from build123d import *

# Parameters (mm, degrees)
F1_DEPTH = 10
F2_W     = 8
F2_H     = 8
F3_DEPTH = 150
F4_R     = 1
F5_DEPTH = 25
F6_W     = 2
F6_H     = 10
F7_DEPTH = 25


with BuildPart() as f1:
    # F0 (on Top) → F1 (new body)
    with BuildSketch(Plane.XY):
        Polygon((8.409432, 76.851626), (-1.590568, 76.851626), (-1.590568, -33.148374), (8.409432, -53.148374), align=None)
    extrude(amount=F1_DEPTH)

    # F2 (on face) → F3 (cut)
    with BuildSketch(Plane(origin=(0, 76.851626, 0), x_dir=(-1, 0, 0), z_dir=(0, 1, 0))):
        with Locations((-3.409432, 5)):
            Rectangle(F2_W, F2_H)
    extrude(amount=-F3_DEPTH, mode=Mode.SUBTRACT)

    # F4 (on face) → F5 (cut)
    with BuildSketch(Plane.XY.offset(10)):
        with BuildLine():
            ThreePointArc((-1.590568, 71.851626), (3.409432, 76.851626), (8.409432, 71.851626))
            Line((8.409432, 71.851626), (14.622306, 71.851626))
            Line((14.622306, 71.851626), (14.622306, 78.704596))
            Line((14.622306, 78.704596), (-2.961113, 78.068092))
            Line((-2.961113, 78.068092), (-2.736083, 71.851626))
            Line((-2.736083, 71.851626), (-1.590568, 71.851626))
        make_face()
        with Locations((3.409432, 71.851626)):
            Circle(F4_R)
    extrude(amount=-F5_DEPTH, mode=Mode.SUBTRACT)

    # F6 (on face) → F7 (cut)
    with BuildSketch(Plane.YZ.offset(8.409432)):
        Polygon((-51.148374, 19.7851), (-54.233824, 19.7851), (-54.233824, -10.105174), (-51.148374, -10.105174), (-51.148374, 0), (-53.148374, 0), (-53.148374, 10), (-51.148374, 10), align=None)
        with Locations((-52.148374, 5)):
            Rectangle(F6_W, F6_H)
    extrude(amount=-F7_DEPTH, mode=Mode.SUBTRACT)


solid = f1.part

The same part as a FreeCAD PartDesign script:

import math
import FreeCAD as App
import Part
import Sketcher
from FreeCAD import Vector


def add_polygon(sketch, points):
    """Adds a closed chain of lines whose ends are joined by coincident constraints."""
    first, n = sketch.GeometryCount, len(points)
    for a, b in zip(points, points[1:] + points[:1]):
        sketch.addGeometry(Part.LineSegment(App.Vector(*a, 0), App.Vector(*b, 0)), False)
    for i in range(n):
        sketch.addConstraint(Sketcher.Constraint("Coincident", first + i, 2, first + (i + 1) % n, 1))

doc = App.newDocument("Part")
body = doc.addObject("PartDesign::Body", "Body")

# Sketch on XY plane
sketch1 = body.newObject("Sketcher::SketchObject", "Sketch")
sketch1.AttachmentSupport = (doc.getObject("XY_Plane"), [""])
sketch1.MapMode = "FlatFace"
add_polygon(sketch1, [(8, 77), (-2, 77), (-2, -33), (8, -53)])  # lines 0-3
sketch1.addConstraint(Sketcher.Constraint("Horizontal", 0))
sketch1.addConstraint(Sketcher.Constraint("Vertical", 1))
sketch1.addConstraint(Sketcher.Constraint("Vertical", 3))
sketch1.addConstraint(Sketcher.Constraint("DistanceX", 0, 2, 0, 1, 10.0))
sketch1.addConstraint(Sketcher.Constraint("DistanceY", 1, 2, 1, 1, 110.0))
sketch1.addConstraint(Sketcher.Constraint("DistanceY", 3, 1, 3, 2, 130.0))
sketch1.addConstraint(Sketcher.Constraint("DistanceX", 0, 2, -1, 1, 1.590568))
sketch1.addConstraint(Sketcher.Constraint("DistanceY", -1, 1, 0, 2, 76.851626))
pad1 = body.newObject("PartDesign::Pad", "Pad")
pad1.Profile = sketch1
pad1.Length = 10

# Sketch on XZ plane
sketch2 = body.newObject("Sketcher::SketchObject", "Sketch001")
sketch2.AttachmentSupport = (doc.getObject("XZ_Plane"), [""])
sketch2.MapMode = "FlatFace"
sketch2.AttachmentOffset = App.Placement(Vector(0, 0, -76.851626), App.Rotation())
add_polygon(sketch2, [(7, 9), (7, 1), (-1, 1), (-1, 9)])  # lines 0-3
sketch2.addConstraint(Sketcher.Constraint("Vertical", 0))
sketch2.addConstraint(Sketcher.Constraint("Horizontal", 1))
sketch2.addConstraint(Sketcher.Constraint("Vertical", 2))
sketch2.addConstraint(Sketcher.Constraint("Horizontal", 3))
sketch2.addConstraint(Sketcher.Constraint("Equal", 3, 0))
sketch2.addConstraint(Sketcher.Constraint("DistanceX", 1, 2, 1, 1, 8.0))
sketch2.addConstraint(Sketcher.Constraint("DistanceY", -1, 1, 0, 2, 1.0))
sketch2.addConstraint(Sketcher.Constraint("DistanceX", -1, 1, 0, 2, 7.409432))
pocket1 = body.newObject("PartDesign::Pocket", "Pocket")
pocket1.Profile = sketch2
pocket1.Length = 150
pocket1.Reversed = True

# Sketch on XY plane
sketch3 = body.newObject("Sketcher::SketchObject", "Sketch002")
sketch3.AttachmentSupport = (doc.getObject("XY_Plane"), [""])
sketch3.MapMode = "FlatFace"
sketch3.AttachmentOffset = App.Placement(Vector(0, 0, 10), App.Rotation())
sketch3.addGeometry(Part.ArcOfCircle(Part.Circle(Vector(3.4, 71.9, 0), Vector(0, 0, 1), 5), math.radians(0), math.radians(180)), False)
sketch3.addGeometry(Part.LineSegment(Vector(8.4, 71.9, 0), Vector(14.6, 71.9, 0)), False)
sketch3.addGeometry(Part.LineSegment(Vector(14.6, 71.9, 0), Vector(14.6, 78.7, 0)), False)
sketch3.addGeometry(Part.LineSegment(Vector(14.6, 78.7, 0), Vector(-3, 78.1, 0)), False)
sketch3.addGeometry(Part.LineSegment(Vector(-3, 78.1, 0), Vector(-2.7, 71.9, 0)), False)
sketch3.addGeometry(Part.LineSegment(Vector(-2.7, 71.9, 0), Vector(-1.6, 71.9, 0)), False)
sketch3.addGeometry(Part.Circle(Vector(3.4, 71.9, 0), Vector(0, 0, 1), 1), False)
sketch3.addConstraint(Sketcher.Constraint("Coincident", 0, 1, 1, 1))
sketch3.addConstraint(Sketcher.Constraint("Coincident", 1, 2, 2, 1))
sketch3.addConstraint(Sketcher.Constraint("Coincident", 2, 2, 3, 1))
sketch3.addConstraint(Sketcher.Constraint("Coincident", 3, 2, 4, 1))
sketch3.addConstraint(Sketcher.Constraint("Coincident", 4, 2, 5, 1))
sketch3.addConstraint(Sketcher.Constraint("Coincident", 5, 2, 0, 2))
sketch3.addConstraint(Sketcher.Constraint("Horizontal", 1))
sketch3.addConstraint(Sketcher.Constraint("Vertical", 2))
sketch3.addConstraint(Sketcher.Constraint("Horizontal", 5))
sketch3.addConstraint(Sketcher.Constraint("Coincident", 6, 3, 0, 3))
sketch3.addConstraint(Sketcher.Constraint("Perpendicular", 3, 4))
sketch3.addConstraint(Sketcher.Constraint("Horizontal", 6, 3, 0, 1))
sketch3.addConstraint(Sketcher.Constraint("Horizontal", 1, 2, 4, 2))
sketch3.addConstraint(Sketcher.Constraint("Diameter", 6, 2.0))
sketch3.addConstraint(Sketcher.Constraint("Radius", 0, 5.0))
sketch3.addConstraint(Sketcher.Constraint("DistanceY", 2, 1, 2, 2, 6.85297))
sketch3.addConstraint(Sketcher.Constraint("DistanceX", 1, 1, 1, 2, 6.212874))
sketch3.addConstraint(Sketcher.Constraint("DistanceX", 5, 1, 5, 2, 1.145515))
sketch3.addConstraint(Sketcher.Constraint("DistanceX", -1, 1, 0, 3, 3.409432))
sketch3.addConstraint(Sketcher.Constraint("DistanceY", -1, 1, 3, 2, 78.068092))
sketch3.addConstraint(Sketcher.Constraint("DistanceX", 3, 2, 2, 2, 17.583419))
pocket2 = body.newObject("PartDesign::Pocket", "Pocket001")
pocket2.Profile = sketch3
pocket2.Length = 25

# Sketch on YZ plane
sketch4 = body.newObject("Sketcher::SketchObject", "Sketch003")
sketch4.AttachmentSupport = (doc.getObject("YZ_Plane"), [""])
sketch4.MapMode = "FlatFace"
sketch4.AttachmentOffset = App.Placement(Vector(0, 0, 8.409432), App.Rotation())
add_polygon(sketch4, [(-51.1, 19.8), (-54.2, 19.8), (-54.2, -10.1), (-51.1, -10.1)])  # lines 0-3
sketch4.addConstraint(Sketcher.Constraint("Horizontal", 0))
sketch4.addConstraint(Sketcher.Constraint("Vertical", 1))
sketch4.addConstraint(Sketcher.Constraint("Horizontal", 2))
sketch4.addConstraint(Sketcher.Constraint("Vertical", 3))
sketch4.addConstraint(Sketcher.Constraint("DistanceX", 0, 2, 0, 1, 3.08545))
sketch4.addConstraint(Sketcher.Constraint("DistanceY", -1, 1, 0, 2, 19.7851))
sketch4.addConstraint(Sketcher.Constraint("DistanceY", 1, 2, 1, 1, 29.890274))
sketch4.addConstraint(Sketcher.Constraint("DistanceX", 0, 2, -1, 1, 54.233824))
pocket3 = body.newObject("PartDesign::Pocket", "Pocket002")
pocket3.Profile = sketch4
pocket3.Length = 25

doc.recompute()
